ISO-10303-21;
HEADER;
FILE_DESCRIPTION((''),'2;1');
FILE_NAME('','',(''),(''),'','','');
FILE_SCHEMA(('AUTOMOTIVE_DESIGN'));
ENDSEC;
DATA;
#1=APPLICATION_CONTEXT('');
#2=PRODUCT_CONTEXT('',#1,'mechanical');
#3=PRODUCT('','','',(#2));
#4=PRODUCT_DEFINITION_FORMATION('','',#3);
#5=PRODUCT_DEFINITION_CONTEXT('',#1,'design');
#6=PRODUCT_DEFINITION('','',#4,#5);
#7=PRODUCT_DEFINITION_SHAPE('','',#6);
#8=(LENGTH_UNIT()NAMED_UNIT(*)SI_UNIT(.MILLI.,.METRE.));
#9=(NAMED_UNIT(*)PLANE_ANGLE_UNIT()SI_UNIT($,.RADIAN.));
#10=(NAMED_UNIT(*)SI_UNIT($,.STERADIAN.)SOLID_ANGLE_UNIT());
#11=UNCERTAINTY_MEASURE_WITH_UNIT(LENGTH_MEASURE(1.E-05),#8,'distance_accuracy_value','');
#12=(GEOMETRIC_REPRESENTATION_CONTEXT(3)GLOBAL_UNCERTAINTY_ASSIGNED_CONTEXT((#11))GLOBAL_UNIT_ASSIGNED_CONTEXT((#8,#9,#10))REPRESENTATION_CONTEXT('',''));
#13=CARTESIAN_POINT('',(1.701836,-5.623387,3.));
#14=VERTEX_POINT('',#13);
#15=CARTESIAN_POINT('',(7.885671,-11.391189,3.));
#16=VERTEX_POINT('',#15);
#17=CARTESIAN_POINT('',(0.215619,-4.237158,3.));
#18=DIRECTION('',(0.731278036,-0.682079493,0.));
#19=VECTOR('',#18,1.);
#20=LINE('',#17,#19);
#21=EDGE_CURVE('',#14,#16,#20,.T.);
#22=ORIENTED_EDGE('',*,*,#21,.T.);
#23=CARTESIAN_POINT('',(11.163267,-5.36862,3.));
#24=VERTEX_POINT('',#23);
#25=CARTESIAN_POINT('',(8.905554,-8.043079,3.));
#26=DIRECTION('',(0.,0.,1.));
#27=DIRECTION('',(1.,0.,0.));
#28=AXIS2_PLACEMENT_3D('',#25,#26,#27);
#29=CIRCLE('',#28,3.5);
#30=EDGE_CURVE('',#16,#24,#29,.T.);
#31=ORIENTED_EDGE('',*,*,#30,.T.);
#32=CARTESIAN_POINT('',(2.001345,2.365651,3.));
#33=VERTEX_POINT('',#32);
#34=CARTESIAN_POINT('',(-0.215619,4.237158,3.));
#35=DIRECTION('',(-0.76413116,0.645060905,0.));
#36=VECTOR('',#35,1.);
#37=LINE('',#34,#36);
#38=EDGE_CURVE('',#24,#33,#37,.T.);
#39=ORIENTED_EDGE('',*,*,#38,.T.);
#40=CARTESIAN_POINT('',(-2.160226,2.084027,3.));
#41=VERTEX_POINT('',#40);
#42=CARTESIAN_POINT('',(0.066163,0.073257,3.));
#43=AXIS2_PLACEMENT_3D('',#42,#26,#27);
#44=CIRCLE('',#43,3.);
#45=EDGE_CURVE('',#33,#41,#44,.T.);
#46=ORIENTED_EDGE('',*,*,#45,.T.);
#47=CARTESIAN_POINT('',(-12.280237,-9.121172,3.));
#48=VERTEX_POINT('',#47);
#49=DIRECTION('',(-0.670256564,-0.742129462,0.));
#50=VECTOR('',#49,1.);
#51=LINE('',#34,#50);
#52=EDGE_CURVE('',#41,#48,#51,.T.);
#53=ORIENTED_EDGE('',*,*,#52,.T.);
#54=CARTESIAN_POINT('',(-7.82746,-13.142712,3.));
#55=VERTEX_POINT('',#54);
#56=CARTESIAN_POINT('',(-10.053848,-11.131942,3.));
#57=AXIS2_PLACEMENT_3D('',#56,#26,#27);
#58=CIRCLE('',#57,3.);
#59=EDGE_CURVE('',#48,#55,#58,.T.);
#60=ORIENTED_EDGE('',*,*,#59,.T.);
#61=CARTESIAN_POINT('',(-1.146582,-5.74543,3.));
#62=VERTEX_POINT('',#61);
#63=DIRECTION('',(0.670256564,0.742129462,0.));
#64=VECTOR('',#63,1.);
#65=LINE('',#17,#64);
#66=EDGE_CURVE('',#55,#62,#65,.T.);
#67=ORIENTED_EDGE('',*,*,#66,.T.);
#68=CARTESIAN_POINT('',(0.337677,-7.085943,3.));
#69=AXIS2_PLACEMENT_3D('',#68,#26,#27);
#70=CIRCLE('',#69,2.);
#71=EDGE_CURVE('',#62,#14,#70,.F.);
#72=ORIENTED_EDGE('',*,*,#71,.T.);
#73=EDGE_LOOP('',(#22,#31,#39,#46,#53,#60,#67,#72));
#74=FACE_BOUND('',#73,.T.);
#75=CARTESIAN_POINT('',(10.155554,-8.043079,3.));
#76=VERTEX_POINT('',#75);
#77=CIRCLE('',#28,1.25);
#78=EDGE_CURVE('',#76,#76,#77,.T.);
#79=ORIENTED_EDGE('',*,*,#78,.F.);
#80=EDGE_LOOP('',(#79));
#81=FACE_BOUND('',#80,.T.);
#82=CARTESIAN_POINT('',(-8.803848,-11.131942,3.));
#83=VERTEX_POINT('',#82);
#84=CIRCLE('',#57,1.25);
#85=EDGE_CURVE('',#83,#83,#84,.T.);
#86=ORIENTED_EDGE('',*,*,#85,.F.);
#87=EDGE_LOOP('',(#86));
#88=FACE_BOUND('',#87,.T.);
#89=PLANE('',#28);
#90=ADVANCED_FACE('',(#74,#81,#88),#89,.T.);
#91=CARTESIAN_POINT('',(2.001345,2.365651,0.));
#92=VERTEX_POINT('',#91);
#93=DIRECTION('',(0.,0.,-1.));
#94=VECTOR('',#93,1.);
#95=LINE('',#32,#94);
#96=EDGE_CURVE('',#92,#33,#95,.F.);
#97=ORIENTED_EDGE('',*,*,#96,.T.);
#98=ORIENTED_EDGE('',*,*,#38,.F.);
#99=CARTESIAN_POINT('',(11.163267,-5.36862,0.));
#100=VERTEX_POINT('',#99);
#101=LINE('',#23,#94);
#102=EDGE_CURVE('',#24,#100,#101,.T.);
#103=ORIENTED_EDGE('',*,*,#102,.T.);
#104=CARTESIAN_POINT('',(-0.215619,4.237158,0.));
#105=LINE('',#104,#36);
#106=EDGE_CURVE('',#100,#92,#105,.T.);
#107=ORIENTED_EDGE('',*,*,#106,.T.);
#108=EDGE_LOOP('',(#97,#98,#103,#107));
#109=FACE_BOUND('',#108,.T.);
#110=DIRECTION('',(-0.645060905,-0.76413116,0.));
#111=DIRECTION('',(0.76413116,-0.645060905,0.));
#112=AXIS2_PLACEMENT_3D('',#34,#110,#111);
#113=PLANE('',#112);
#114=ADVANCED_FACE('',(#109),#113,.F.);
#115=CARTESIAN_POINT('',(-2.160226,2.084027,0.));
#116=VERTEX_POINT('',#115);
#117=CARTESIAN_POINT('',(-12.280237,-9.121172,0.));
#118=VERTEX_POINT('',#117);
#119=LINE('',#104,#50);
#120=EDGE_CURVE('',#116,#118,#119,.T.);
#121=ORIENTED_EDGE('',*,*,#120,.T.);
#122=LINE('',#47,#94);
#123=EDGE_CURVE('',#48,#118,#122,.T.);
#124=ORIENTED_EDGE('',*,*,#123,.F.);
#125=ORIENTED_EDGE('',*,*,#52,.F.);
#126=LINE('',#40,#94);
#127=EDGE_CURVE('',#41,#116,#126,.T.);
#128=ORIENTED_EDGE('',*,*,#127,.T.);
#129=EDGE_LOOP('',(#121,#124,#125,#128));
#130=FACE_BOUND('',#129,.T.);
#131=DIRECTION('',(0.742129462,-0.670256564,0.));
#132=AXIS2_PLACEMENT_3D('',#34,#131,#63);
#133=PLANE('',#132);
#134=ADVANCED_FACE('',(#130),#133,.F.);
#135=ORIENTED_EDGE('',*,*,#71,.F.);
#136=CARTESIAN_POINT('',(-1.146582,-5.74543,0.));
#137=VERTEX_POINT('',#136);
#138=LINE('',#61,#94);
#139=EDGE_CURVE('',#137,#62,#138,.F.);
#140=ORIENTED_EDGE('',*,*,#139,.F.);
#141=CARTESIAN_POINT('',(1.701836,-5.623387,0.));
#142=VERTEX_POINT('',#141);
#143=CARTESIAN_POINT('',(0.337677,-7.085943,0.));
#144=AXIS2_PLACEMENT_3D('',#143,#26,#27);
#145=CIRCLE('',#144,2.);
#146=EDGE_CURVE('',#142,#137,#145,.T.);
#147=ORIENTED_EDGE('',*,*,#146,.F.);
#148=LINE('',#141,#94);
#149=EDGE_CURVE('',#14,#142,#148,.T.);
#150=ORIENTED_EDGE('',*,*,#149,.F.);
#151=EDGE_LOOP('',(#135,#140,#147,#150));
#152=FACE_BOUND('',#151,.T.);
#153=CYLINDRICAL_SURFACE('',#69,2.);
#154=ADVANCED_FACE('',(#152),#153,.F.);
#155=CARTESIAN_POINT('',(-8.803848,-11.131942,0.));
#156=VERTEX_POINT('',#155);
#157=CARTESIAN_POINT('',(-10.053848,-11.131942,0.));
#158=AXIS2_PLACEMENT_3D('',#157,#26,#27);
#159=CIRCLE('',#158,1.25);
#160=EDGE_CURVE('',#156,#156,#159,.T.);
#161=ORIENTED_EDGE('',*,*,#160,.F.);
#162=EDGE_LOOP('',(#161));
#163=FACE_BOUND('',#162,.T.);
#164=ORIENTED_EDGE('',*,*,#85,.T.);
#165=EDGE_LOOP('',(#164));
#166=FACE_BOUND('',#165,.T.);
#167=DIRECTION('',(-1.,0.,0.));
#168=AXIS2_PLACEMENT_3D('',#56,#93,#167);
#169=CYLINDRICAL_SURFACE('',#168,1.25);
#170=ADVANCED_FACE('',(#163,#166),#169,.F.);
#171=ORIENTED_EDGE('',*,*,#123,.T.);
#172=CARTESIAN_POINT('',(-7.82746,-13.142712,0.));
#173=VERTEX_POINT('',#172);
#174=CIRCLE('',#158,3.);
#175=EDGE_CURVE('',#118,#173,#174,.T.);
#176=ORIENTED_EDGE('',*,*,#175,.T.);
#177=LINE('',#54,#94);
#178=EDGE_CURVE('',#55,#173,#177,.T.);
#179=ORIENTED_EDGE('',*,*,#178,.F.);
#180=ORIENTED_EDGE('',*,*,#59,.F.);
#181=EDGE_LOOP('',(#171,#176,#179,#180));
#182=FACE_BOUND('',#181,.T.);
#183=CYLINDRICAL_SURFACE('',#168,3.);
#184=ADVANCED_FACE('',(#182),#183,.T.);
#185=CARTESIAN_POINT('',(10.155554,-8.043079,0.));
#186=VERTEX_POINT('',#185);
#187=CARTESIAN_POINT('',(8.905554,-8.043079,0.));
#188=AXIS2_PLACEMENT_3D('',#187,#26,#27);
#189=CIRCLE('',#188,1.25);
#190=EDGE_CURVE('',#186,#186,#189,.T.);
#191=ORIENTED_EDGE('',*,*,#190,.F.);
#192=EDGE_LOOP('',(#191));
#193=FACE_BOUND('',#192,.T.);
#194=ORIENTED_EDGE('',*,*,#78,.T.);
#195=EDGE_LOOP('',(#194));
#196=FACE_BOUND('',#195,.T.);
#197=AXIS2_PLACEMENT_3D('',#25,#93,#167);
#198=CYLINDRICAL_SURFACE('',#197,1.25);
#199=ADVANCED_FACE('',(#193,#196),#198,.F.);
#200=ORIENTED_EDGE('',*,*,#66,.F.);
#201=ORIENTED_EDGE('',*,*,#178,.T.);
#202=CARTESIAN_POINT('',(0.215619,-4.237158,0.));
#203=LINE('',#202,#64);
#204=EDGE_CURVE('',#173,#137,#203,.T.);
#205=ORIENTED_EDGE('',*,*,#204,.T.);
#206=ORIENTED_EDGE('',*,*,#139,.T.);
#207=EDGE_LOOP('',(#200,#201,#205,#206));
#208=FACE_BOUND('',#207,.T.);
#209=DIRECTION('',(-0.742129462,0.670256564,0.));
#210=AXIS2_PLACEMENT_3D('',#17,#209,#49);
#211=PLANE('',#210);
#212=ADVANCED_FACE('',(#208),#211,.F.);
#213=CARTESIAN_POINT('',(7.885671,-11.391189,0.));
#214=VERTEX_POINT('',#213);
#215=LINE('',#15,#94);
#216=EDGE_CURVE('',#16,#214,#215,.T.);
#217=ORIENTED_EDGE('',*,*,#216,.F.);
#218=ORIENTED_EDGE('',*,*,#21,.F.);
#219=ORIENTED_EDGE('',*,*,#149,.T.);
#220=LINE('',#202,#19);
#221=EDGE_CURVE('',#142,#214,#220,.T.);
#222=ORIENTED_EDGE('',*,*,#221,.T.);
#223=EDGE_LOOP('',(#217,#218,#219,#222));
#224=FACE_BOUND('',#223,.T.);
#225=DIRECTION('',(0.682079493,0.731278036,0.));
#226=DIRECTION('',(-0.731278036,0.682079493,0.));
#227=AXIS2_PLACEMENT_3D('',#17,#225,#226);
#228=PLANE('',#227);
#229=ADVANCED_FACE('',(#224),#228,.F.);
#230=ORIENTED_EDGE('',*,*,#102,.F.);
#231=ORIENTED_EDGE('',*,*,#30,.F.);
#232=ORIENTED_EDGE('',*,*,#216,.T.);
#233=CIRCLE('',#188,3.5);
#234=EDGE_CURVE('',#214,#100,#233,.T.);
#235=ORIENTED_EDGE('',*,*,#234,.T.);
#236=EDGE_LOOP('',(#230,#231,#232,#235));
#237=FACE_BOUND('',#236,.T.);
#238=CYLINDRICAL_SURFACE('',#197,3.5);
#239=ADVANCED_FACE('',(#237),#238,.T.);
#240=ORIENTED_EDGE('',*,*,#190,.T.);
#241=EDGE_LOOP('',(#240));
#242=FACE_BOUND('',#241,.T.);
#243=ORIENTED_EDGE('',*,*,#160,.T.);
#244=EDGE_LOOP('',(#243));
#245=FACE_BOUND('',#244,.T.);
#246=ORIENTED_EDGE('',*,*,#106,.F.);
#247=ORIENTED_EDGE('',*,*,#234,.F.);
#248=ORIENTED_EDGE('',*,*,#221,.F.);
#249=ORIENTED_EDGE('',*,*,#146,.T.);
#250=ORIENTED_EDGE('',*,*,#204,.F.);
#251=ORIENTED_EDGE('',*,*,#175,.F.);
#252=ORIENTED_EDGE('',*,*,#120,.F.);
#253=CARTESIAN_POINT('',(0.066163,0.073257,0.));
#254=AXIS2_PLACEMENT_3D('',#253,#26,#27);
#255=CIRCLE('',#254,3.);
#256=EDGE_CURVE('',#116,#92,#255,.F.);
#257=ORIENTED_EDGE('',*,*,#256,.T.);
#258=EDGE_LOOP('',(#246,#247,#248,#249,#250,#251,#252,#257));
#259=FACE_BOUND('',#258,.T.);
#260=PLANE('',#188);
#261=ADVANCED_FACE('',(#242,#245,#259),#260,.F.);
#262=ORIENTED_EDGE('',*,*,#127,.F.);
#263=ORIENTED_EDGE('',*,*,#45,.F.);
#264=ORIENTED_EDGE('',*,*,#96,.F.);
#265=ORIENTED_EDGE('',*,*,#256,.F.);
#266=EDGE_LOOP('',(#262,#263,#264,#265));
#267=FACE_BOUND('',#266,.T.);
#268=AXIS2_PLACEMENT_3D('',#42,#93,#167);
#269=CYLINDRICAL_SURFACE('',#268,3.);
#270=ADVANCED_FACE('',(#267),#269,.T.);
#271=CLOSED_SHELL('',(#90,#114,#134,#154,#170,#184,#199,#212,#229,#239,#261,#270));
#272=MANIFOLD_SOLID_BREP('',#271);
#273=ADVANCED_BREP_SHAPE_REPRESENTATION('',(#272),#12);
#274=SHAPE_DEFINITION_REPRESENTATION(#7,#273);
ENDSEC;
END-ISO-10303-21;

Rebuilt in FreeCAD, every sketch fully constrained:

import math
import FreeCAD as App
import Part
import Sketcher
from FreeCAD import Vector
Q = App.Units.Quantity


def edges_at(feature, points):
    """Names of the edges that pass closest to the given points."""
    edges = feature.Shape.Edges
    near = lambda p: min(range(len(edges)), key=lambda i: edges[i].distToShape(Part.Vertex(*p))[0])
    return sorted({f"Edge{near(p) + 1}" for p in points})

doc = App.newDocument("Part")
body = doc.addObject("PartDesign::Body", "Body")

sketch1 = body.newObject("Sketcher::SketchObject", "Sketch")
sketch1.AttachmentSupport = (doc.getObject("XY_Plane"), [""])
sketch1.MapMode = "FlatFace"
sketch1.addGeometry(Part.LineSegment(Vector(-0.215619, 4.237158, 0), Vector(-12.280237, -9.121172, 0)), False)
sketch1.addGeometry(Part.ArcOfCircle(Part.Circle(Vector(-10.053848, -11.131942, 0), Vector(0, 0, 1), 3), math.radians(137.91313), math.radians(317.91313)), False)
sketch1.addGeometry(Part.LineSegment(Vector(-7.82746, -13.142712, 0), Vector(0.215619, -4.237158, 0)), False)
sketch1.addGeometry(Part.LineSegment(Vector(0.215619, -4.237158, 0), Vector(7.885671, -11.391189, 0)), False)
sketch1.addGeometry(Part.ArcOfCircle(Part.Circle(Vector(8.905554, -8.043079, 0), Vector(0, 0, 1), 3.5), math.radians(-106.941491), math.radians(49.829758)), False)
sketch1.addGeometry(Part.LineSegment(Vector(11.163267, -5.36862, 0), Vector(-0.215619, 4.237158, 0)), False)
sketch1.addGeometry(Part.Circle(Vector(-10.053848, -11.131942, 0), Vector(0, 0, 1), 1.25), False)
sketch1.addGeometry(Part.Circle(Vector(8.905554, -8.043079, 0), Vector(0, 0, 1), 1.25), False)
sketch1.addConstraint(Sketcher.Constraint("Tangent", 0, 2, 1, 1))
sketch1.addConstraint(Sketcher.Constraint("Tangent", 1, 2, 2, 1))
sketch1.addConstraint(Sketcher.Constraint("Coincident", 2, 2, 3, 1))
sketch1.addConstraint(Sketcher.Constraint("Coincident", 3, 2, 4, 1))
sketch1.addConstraint(Sketcher.Constraint("Tangent", 4, 2, 5, 1))
sketch1.addConstraint(Sketcher.Constraint("Coincident", 5, 2, 0, 1))
sketch1.addConstraint(Sketcher.Constraint("Coincident", 6, 3, 1, 3))
sketch1.addConstraint(Sketcher.Constraint("Coincident", 7, 3, 4, 3))
sketch1.addConstraint(Sketcher.Constraint("Equal", 6, 7))
sketch1.addConstraint(Sketcher.Constraint("Symmetric", 2, 2, 5, 2, -1, 1))
sketch1.addConstraint(Sketcher.Constraint("Parallel", 0, 2))
sketch1.addConstraint(Sketcher.Constraint("Radius", 1, Q("3 mm")))
sketch1.addConstraint(Sketcher.Constraint("Diameter", 6, Q("2.5 mm")))
sketch1.addConstraint(Sketcher.Constraint("Radius", 4, Q("3.5 mm")))
sketch1.addConstraint(Sketcher.Constraint("Distance", 0, Q("18 mm")))
sketch1.addConstraint(Sketcher.Constraint("Distance", 2, Q("12 mm")))
sketch1.addConstraint(Sketcher.Constraint("Distance", 3, Q("10.488558 mm")))
sketch1.addConstraint(Sketcher.Constraint("DistanceX", 1, 3, -1, 1, Q("10.053848 mm")))
sketch1.addConstraint(Sketcher.Constraint("DistanceY", 4, 3, -1, 1, Q("8.043079 mm")))
sketch1.addConstraint(Sketcher.Constraint("DistanceX", -1, 1, 3, 2, Q("7.885671 mm")))
pad1 = body.newObject("PartDesign::Pad", "Pad")
pad1.Profile = sketch1
pad1.Length = 3
doc.recompute()

fillet = body.newObject("PartDesign::Fillet", "Fillet")
fillet.Base = (pad1, edges_at(pad1, [(-0.216, 4.237, 1.5)]))
fillet.Radius = 3
doc.recompute()

fillet2 = body.newObject("PartDesign::Fillet", "Fillet001")
fillet2.Base = (fillet, edges_at(fillet, [(0.216, -4.237, 1.5)]))
fillet2.Radius = 2

doc.recompute()
